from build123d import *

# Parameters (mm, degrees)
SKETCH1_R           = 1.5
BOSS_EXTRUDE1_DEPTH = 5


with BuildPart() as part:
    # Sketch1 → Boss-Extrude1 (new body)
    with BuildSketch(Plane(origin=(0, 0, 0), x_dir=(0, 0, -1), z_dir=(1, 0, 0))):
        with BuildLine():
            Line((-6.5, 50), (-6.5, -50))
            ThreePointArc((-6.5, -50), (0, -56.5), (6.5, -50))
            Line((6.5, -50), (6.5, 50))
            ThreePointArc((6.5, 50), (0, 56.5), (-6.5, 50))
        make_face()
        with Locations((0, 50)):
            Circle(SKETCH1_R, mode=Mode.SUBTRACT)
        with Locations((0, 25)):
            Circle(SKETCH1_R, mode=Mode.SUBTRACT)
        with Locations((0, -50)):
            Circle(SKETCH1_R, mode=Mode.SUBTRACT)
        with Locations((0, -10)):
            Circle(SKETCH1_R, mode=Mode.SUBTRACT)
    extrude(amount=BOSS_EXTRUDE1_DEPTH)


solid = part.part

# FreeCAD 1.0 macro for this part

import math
import FreeCAD as App
import Part
import Sketcher

doc = App.newDocument("Part")
body = doc.addObject("PartDesign::Body", "Body")

# Sketch on YZ plane
sketch1 = doc.addObject("Sketcher::SketchObject", "Sketch")
body.addObject(sketch1)
sketch1.AttachmentSupport = (doc.YZ_Plane, [""])
sketch1.MapMode = "FlatFace"
sketch1.addGeometry([
    Part.LineSegment(App.Vector(50, 6.5, 0), App.Vector(-50, 6.5, 0)),  # 0
    Part.ArcOfCircle(Part.Circle(App.Vector(-50, 0, 0), App.Vector(0, 0, 1), 6.5), math.radians(90), math.radians(270)),  # 1
    Part.LineSegment(App.Vector(-50, -6.5, 0), App.Vector(50, -6.5, 0)),  # 2
    Part.ArcOfCircle(Part.Circle(App.Vector(50, 0, 0), App.Vector(0, 0, 1), 6.5), math.radians(-90), math.radians(90)),  # 3
    Part.Circle(App.Vector(-50, 0, 0), App.Vector(0, 0, 1), 1.5),  # 4
    Part.Circle(App.Vector(-10, 0, 0), App.Vector(0, 0, 1), 1.5),  # 5
    Part.Circle(App.Vector(25, 0, 0), App.Vector(0, 0, 1), 1.5),  # 6
    Part.Circle(App.Vector(50, 0, 0), App.Vector(0, 0, 1), 1.5),  # 7
], False)
sketch1.addConstraint([
    Sketcher.Constraint("Tangent", 0, 2, 1, 1),
    Sketcher.Constraint("Tangent", 1, 2, 2, 1),
    Sketcher.Constraint("Tangent", 2, 2, 3, 1),
    Sketcher.Constraint("Tangent", 3, 2, 0, 1),
    Sketcher.Constraint("Horizontal", 0),
    Sketcher.Constraint("Horizontal", 2),
    Sketcher.Constraint("Coincident", 4, 3, 1, 3),
    Sketcher.Constraint("Coincident", 7, 3, 3, 3),
    Sketcher.Constraint("Equal", 4, 5),
    Sketcher.Constraint("Equal", 5, 6),
    Sketcher.Constraint("Equal", 6, 7),
    Sketcher.Constraint("Symmetric", 1, 3, 3, 3, -1, 1),
    Sketcher.Constraint("PointOnObject", 5, 3, -1),
    Sketcher.Constraint("PointOnObject", 6, 3, -1),
    Sketcher.Constraint("Diameter", 4, 3.0),
    Sketcher.Constraint("Radius", 1, 6.5),
    Sketcher.Constraint("DistanceX", 0, 2, 0, 1, 100.0),
    Sketcher.Constraint("DistanceX", 5, 3, -1, 1, 10.0),
    Sketcher.Constraint("DistanceX", -1, 1, 6, 3, 25.0),
])
pad1 = doc.addObject("PartDesign::Pad", "Pad")
body.addObject(pad1)
pad1.Profile = sketch1
pad1.Length = 5

doc.recompute()
